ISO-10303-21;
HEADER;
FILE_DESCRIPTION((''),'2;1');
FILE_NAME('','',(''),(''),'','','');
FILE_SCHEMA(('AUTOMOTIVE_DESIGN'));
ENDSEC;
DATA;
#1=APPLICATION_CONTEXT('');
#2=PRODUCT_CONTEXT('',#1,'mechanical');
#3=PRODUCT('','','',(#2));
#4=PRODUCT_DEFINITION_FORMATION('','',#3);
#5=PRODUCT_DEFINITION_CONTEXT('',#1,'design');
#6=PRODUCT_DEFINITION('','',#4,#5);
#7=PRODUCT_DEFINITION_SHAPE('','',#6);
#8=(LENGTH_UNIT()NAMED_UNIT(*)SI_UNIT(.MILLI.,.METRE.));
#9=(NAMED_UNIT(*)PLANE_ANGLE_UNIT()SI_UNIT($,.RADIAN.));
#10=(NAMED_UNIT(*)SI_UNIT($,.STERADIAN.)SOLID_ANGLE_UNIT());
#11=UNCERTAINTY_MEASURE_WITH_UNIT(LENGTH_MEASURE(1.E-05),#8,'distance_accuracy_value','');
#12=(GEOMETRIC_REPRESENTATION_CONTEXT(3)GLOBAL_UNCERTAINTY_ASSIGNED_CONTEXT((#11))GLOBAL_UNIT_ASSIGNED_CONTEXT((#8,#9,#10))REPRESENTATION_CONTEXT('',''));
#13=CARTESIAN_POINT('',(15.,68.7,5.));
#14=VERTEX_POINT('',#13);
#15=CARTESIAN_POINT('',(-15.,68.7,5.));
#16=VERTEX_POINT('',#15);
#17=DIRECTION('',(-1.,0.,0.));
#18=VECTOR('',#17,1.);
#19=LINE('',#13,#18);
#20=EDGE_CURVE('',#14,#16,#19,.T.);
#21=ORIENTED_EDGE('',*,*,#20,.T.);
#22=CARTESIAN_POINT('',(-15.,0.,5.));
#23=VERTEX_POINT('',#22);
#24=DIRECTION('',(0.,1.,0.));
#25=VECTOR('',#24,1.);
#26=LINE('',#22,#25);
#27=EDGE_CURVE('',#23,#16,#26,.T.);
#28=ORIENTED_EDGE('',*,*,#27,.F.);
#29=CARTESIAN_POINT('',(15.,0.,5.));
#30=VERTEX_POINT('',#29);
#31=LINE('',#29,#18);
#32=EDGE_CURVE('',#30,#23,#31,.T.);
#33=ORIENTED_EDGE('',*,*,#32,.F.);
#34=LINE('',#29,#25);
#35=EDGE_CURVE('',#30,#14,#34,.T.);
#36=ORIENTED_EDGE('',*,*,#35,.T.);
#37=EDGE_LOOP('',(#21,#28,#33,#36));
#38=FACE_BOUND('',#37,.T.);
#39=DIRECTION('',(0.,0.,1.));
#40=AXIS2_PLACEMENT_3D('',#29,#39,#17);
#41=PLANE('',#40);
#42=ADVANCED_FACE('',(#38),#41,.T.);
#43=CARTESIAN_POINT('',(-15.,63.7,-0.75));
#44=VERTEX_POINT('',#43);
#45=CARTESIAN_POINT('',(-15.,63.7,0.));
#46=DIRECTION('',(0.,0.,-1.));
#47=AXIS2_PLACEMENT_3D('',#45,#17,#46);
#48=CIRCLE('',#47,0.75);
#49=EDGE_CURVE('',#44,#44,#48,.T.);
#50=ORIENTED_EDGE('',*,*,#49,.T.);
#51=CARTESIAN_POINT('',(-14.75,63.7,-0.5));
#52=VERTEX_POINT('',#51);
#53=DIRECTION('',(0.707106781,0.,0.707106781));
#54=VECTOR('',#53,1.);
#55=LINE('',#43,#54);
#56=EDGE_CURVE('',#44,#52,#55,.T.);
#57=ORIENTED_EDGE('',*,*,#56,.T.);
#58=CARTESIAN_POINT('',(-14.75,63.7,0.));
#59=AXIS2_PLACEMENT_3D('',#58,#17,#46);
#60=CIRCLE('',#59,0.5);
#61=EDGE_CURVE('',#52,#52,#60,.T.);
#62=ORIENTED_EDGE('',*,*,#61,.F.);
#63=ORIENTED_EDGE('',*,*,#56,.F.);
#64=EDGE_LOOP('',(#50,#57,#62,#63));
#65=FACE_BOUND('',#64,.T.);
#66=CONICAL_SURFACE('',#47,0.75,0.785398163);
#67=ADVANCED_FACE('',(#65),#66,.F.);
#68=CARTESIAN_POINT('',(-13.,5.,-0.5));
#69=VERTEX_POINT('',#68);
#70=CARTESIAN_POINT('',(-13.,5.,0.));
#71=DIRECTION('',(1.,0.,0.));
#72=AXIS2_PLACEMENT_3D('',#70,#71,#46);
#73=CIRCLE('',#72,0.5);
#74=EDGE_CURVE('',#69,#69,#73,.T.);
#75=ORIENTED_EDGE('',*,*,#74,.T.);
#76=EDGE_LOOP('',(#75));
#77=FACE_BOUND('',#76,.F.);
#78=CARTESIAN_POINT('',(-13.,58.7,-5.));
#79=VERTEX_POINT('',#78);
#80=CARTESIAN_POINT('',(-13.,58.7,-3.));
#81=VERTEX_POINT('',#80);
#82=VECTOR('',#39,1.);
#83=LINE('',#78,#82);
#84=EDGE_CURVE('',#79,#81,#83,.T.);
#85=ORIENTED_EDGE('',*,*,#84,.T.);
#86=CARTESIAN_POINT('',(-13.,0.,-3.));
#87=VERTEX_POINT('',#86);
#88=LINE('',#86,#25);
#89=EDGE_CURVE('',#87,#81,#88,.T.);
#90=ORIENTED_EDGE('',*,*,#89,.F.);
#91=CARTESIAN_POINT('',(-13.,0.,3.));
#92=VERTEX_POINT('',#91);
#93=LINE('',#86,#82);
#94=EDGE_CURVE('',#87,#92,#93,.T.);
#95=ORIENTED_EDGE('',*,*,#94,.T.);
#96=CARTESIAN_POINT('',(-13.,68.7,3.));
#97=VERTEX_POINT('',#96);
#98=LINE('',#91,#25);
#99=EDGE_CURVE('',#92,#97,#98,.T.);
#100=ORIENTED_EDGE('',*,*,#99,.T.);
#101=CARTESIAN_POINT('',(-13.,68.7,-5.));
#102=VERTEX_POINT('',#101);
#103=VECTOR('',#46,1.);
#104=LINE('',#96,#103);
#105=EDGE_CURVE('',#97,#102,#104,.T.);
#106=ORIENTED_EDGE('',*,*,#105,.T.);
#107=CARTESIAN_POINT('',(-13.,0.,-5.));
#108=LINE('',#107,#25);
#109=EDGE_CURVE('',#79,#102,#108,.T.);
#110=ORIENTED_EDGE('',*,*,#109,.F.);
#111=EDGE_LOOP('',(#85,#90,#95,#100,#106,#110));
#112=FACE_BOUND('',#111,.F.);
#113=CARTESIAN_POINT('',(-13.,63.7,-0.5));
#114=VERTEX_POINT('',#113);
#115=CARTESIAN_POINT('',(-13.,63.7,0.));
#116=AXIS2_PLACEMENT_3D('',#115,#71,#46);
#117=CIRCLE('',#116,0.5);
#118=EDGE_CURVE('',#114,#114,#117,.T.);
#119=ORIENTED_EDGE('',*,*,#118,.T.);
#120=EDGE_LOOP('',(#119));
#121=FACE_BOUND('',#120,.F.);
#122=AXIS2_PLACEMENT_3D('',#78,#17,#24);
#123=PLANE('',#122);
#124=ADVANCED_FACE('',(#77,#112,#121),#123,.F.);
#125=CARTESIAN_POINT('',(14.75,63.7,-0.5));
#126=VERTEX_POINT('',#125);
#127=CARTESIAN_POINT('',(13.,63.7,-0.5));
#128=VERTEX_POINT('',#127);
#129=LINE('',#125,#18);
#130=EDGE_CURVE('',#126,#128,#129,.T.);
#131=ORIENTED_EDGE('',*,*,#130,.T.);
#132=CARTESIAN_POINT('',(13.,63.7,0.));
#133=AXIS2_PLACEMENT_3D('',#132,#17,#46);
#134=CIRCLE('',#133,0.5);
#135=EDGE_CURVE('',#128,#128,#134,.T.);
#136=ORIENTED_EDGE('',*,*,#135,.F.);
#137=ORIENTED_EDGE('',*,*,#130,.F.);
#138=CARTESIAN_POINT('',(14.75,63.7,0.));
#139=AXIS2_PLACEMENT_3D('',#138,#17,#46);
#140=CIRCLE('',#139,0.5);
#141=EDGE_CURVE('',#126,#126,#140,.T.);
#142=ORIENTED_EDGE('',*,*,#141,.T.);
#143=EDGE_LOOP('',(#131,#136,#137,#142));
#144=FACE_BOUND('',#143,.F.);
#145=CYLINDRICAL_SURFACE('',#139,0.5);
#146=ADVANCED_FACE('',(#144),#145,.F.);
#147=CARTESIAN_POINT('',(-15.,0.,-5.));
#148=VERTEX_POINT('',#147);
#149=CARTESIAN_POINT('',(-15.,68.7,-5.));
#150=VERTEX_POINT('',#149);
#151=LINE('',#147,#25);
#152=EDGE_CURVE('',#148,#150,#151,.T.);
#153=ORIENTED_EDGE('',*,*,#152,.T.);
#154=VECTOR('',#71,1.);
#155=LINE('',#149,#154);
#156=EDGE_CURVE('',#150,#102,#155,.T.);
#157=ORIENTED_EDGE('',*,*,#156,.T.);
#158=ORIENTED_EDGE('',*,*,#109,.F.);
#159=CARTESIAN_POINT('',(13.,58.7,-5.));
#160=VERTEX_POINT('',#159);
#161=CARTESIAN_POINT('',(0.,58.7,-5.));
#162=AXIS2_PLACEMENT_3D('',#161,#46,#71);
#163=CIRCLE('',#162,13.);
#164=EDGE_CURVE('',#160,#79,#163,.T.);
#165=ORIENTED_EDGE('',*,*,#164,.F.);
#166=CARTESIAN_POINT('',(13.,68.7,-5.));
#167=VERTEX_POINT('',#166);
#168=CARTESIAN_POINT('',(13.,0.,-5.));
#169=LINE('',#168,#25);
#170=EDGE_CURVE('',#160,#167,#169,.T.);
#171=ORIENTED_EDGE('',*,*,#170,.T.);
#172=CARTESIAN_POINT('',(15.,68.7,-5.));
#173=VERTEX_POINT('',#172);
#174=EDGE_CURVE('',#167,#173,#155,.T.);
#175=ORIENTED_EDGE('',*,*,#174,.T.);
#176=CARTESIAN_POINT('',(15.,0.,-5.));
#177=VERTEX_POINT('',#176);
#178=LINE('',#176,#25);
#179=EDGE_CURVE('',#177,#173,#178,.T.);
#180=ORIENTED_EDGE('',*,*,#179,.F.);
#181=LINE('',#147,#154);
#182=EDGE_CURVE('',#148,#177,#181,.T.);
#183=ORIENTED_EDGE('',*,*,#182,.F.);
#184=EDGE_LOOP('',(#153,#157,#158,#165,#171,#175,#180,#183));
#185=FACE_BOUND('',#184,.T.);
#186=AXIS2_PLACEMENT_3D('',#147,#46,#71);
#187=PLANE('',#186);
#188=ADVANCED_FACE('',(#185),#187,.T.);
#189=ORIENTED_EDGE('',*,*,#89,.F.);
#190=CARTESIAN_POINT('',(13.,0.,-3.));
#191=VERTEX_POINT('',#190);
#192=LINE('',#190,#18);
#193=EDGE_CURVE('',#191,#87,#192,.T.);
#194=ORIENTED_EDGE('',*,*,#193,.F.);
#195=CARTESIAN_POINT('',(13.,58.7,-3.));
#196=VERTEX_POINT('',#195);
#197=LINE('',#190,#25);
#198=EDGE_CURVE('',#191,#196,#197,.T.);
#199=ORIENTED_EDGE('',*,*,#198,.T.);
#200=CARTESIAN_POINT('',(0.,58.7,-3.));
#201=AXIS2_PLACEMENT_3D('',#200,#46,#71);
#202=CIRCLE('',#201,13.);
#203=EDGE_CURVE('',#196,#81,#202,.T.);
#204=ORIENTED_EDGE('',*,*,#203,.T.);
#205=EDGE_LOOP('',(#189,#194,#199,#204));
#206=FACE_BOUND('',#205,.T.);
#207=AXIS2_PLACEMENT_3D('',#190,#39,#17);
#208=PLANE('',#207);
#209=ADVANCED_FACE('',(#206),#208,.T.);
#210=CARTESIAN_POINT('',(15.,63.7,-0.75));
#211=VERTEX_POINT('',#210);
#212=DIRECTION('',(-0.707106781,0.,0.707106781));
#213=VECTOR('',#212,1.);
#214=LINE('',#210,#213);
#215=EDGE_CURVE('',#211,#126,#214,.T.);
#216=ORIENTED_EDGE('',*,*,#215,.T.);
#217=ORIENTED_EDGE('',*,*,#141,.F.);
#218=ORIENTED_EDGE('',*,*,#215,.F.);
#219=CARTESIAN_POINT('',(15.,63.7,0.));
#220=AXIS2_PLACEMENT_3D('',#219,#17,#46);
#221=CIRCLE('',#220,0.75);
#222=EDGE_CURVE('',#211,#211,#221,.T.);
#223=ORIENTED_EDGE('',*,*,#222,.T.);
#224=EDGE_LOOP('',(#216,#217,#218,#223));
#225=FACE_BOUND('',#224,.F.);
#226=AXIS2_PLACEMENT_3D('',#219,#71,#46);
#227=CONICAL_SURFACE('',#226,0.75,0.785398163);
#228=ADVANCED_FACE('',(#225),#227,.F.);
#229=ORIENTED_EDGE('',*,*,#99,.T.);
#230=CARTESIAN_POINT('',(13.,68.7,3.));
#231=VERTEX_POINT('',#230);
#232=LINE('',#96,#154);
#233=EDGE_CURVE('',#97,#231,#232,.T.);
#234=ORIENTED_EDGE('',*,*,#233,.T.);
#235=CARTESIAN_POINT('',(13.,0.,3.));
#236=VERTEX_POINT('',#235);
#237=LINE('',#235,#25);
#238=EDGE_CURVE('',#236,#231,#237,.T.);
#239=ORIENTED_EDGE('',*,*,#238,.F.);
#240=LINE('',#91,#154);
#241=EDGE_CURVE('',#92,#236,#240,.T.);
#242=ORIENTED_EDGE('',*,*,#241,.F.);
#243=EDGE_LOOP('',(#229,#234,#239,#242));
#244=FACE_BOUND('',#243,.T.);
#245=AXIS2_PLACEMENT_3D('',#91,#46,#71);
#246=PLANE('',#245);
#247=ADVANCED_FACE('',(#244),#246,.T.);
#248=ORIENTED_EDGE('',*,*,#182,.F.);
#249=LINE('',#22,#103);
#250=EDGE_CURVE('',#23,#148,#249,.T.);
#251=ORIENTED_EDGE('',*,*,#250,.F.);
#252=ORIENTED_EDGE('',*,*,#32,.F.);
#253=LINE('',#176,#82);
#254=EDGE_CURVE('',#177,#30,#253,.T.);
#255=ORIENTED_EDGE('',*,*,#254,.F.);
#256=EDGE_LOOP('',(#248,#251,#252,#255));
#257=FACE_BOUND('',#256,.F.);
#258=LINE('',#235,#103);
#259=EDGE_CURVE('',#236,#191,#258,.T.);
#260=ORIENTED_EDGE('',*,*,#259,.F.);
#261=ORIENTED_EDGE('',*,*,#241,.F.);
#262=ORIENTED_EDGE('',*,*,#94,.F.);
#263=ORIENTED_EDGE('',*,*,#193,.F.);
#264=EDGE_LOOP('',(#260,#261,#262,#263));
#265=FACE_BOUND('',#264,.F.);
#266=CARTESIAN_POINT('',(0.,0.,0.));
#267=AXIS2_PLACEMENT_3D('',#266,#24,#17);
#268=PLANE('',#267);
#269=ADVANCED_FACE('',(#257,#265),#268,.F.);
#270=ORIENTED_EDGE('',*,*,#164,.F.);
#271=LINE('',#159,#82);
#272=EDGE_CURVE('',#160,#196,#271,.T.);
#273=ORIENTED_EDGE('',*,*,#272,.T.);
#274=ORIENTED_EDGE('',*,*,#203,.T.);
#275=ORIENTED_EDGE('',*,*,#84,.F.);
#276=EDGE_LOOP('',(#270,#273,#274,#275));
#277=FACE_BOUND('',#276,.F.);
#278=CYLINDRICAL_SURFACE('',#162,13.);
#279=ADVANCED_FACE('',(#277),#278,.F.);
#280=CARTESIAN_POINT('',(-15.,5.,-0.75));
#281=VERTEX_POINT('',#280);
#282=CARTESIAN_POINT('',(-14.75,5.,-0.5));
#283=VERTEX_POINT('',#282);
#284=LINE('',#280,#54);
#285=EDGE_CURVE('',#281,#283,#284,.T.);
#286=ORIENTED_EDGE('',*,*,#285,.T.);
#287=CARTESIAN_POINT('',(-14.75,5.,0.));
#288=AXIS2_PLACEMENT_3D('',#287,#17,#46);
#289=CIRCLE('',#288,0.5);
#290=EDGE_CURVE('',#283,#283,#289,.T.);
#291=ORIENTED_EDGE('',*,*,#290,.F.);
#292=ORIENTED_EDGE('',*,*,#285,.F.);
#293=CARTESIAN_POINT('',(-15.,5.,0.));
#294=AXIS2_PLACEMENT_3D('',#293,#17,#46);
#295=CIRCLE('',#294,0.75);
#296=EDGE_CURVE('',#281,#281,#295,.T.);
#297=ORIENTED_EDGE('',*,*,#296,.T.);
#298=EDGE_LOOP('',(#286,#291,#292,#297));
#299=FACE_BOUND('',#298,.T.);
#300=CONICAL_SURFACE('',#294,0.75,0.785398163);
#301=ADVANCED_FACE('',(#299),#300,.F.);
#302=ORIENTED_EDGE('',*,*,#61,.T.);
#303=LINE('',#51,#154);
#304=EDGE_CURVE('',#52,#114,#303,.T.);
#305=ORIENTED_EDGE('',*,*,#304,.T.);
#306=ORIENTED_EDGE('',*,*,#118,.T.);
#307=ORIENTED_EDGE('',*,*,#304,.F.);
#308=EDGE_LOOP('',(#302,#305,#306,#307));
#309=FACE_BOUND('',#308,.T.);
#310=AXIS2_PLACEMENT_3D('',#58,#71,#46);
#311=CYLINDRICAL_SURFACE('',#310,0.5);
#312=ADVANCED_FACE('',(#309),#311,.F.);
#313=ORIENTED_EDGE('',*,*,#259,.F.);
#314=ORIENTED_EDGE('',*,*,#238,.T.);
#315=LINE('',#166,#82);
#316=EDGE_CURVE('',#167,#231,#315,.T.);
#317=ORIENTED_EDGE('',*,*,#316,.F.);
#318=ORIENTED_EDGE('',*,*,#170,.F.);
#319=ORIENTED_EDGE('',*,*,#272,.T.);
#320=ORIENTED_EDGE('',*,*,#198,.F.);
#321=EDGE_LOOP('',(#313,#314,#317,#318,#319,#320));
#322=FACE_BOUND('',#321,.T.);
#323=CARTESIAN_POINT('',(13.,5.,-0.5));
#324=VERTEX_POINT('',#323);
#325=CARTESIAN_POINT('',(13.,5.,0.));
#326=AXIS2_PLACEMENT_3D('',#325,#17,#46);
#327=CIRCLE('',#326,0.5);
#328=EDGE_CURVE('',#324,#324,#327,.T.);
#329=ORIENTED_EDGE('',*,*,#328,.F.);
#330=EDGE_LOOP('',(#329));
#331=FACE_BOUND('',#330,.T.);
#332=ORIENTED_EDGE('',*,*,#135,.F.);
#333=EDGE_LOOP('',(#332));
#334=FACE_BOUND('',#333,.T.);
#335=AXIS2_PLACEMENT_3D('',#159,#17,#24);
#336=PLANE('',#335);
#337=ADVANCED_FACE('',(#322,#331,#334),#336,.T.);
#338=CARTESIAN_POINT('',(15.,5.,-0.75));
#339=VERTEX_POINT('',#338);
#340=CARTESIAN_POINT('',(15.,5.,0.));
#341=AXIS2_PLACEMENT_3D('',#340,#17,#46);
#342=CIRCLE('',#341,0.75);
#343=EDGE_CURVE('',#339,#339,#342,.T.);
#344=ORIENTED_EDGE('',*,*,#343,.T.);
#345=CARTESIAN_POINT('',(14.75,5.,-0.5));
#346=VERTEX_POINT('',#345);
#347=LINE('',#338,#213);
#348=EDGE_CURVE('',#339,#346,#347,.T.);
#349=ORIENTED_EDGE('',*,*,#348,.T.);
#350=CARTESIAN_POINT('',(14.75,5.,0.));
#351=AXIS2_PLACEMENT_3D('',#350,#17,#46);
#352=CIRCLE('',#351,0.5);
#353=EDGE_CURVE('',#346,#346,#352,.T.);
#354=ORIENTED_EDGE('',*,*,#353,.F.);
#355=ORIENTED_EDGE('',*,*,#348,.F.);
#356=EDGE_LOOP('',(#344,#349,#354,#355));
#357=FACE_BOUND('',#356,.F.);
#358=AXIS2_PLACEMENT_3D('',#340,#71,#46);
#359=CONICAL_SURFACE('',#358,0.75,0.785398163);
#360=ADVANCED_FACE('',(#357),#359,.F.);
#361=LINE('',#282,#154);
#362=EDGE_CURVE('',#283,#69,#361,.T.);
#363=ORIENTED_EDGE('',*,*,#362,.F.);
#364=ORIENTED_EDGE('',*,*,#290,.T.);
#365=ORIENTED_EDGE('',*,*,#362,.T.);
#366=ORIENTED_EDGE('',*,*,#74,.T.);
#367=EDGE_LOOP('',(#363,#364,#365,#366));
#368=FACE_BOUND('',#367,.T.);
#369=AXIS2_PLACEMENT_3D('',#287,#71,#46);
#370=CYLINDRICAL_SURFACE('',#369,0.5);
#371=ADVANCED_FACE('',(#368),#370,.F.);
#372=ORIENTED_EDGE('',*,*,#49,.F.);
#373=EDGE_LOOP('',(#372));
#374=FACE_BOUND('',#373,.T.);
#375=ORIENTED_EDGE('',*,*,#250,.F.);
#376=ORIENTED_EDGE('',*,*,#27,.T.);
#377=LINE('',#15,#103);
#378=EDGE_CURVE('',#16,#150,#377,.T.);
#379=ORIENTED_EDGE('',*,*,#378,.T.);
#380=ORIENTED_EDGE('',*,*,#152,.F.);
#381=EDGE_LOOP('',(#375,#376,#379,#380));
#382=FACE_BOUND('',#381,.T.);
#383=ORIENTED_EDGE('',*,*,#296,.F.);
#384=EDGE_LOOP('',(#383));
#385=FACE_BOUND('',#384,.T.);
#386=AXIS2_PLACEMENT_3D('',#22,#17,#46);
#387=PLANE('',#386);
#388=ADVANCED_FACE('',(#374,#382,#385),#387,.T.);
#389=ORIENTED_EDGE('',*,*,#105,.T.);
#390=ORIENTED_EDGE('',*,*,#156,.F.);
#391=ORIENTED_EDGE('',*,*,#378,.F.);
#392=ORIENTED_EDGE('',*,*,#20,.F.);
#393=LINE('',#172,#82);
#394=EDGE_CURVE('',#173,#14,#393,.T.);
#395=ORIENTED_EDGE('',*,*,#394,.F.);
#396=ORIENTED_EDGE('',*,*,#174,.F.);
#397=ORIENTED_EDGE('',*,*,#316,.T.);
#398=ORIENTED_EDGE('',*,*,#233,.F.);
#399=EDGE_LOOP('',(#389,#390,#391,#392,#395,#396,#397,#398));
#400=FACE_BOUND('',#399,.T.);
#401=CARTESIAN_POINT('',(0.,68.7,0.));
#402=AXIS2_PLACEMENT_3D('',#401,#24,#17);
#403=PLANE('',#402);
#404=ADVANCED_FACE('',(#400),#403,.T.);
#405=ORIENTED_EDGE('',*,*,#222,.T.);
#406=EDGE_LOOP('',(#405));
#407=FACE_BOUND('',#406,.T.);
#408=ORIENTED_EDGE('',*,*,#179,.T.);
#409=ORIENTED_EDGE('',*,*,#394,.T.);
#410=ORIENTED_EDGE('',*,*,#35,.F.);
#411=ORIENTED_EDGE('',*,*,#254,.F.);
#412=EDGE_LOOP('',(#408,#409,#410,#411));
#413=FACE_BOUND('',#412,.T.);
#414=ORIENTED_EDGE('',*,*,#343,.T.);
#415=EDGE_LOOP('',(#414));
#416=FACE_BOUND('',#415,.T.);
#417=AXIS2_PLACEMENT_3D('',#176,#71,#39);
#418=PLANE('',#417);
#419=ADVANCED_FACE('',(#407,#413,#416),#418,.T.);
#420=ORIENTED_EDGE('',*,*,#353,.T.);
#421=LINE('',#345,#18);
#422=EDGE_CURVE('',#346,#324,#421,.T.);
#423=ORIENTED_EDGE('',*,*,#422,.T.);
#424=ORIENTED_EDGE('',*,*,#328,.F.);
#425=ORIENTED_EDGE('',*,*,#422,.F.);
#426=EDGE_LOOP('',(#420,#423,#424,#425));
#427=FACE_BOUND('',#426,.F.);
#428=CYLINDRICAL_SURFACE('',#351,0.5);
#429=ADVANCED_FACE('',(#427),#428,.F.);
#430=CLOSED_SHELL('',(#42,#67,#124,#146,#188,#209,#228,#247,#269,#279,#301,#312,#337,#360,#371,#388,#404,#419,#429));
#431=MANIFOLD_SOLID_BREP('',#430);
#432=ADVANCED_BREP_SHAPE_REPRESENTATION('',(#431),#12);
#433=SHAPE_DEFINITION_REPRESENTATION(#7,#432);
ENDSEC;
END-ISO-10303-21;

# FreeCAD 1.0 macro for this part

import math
import FreeCAD as App
import Part
import Sketcher
from FreeCAD import Vector

doc = App.newDocument("Part")
body = doc.addObject("PartDesign::Body", "Body")

# Sketch on XZ plane
sketch1 = body.newObject("Sketcher::SketchObject", "Sketch")
sketch1.AttachmentSupport = (doc.getObject("XZ_Plane"), [""])
sketch1.MapMode = "FlatFace"
sketch1.addGeometry([
    Part.LineSegment(Vector(15, -5, 0), Vector(-15, -5, 0)),  # 0
    Part.LineSegment(Vector(-15, -5, 0), Vector(-15, 5, 0)),  # 1
    Part.LineSegment(Vector(-15, 5, 0), Vector(15, 5, 0)),  # 2
    Part.LineSegment(Vector(15, 5, 0), Vector(15, -5, 0)),  # 3
    Part.LineSegment(Vector(-13, -3, 0), Vector(13, -3, 0)),  # 4
    Part.LineSegment(Vector(13, -3, 0), Vector(13, 3, 0)),  # 5
    Part.LineSegment(Vector(13, 3, 0), Vector(-13, 3, 0)),  # 6
    Part.LineSegment(Vector(-13, 3, 0), Vector(-13, -3, 0)),  # 7
], False)
sketch1.addConstraint([
    Sketcher.Constraint("Coincident", 0, 2, 1, 1),
    Sketcher.Constraint("Coincident", 1, 2, 2, 1),
    Sketcher.Constraint("Coincident", 2, 2, 3, 1),
    Sketcher.Constraint("Coincident", 3, 2, 0, 1),
    Sketcher.Constraint("Coincident", 4, 2, 5, 1),
    Sketcher.Constraint("Coincident", 5, 2, 6, 1),
    Sketcher.Constraint("Coincident", 6, 2, 7, 1),
    Sketcher.Constraint("Coincident", 7, 2, 4, 1),
    Sketcher.Constraint("Horizontal", 0),
    Sketcher.Constraint("Vertical", 1),
    Sketcher.Constraint("Horizontal", 2),
    Sketcher.Constraint("Vertical", 3),
    Sketcher.Constraint("Horizontal", 4),
    Sketcher.Constraint("Vertical", 5),
    Sketcher.Constraint("Horizontal", 6),
    Sketcher.Constraint("Vertical", 7),
    Sketcher.Constraint("Symmetric", 0, 2, 2, 2, -1, 1),
    Sketcher.Constraint("Symmetric", 4, 2, 6, 2, -1, 1),
    Sketcher.Constraint("DistanceX", 0, 2, 0, 1, 30.0),
    Sketcher.Constraint("DistanceY", 1, 1, 1, 2, 10.0),
    Sketcher.Constraint("DistanceX", 4, 2, 3, 2, 2.0),
    Sketcher.Constraint("DistanceY", 3, 2, 4, 2, 2.0),
])
pad1 = body.newObject("PartDesign::Pad", "Pad")
pad1.Profile = sketch1
pad1.Length = 68.7
pad1.Reversed = True

# Sketch on XY plane
sketch2 = body.newObject("Sketcher::SketchObject", "Sketch001")
sketch2.AttachmentSupport = (doc.getObject("XY_Plane"), [""])
sketch2.MapMode = "FlatFace"
sketch2.AttachmentOffset = App.Placement(Vector(0, 0, -5), App.Rotation())
sketch2.addGeometry([
    Part.LineSegment(Vector(-13, 69, 0), Vector(13, 69, 0)),
    Part.LineSegment(Vector(13, 69, 0), Vector(13, 59, 0)),
    Part.ArcOfCircle(Part.Circle(Vector(0, 59, 0), Vector(0, 0, 1), 13), math.radians(180), math.radians(360)),
    Part.LineSegment(Vector(-13, 59, 0), Vector(-13, 69, 0)),
], False)
sketch2.addConstraint([
    Sketcher.Constraint("Coincident", 0, 2, 1, 1),
    Sketcher.Constraint("Tangent", 1, 2, 2, 2),
    Sketcher.Constraint("Tangent", 2, 1, 3, 1),
    Sketcher.Constraint("Coincident", 3, 2, 0, 1),
    Sketcher.Constraint("Horizontal", 0),
    Sketcher.Constraint("Vertical", 1),
    Sketcher.Constraint("Vertical", 3),
    Sketcher.Constraint("PointOnObject", 2, 3, -2),
    Sketcher.Constraint("DistanceY", 1, 2, 1, 1, 10.0),
    Sketcher.Constraint("Radius", 2, 13.0),
    Sketcher.Constraint("DistanceY", -1, 1, 2, 3, 58.7),
])
pocket1 = body.newObject("PartDesign::Pocket", "Pocket")
pocket1.Profile = sketch2
pocket1.Length = 2
pocket1.Reversed = True

# Sketch on YZ plane
sketch3 = body.newObject("Sketcher::SketchObject", "Sketch002")
sketch3.AttachmentSupport = (doc.getObject("YZ_Plane"), [""])
sketch3.MapMode = "FlatFace"
sketch3.AttachmentOffset = App.Placement(Vector(0, 0, 15), App.Rotation())
sketch3.addGeometry([
    Part.Circle(Vector(63.7, 0, 0), Vector(0, 0, 1), 0.5),
    Part.Circle(Vector(5, 0, 0), Vector(0, 0, 1), 0.5),
], False)
sketch3.addConstraint([
    Sketcher.Constraint("Equal", 0, 1),
    Sketcher.Constraint("PointOnObject", 0, 3, -1),
    Sketcher.Constraint("PointOnObject", 1, 3, -1),
    Sketcher.Constraint("Diameter", 0, 1.0),
    Sketcher.Constraint("DistanceX", -1, 1, 1, 3, 5.0),
    Sketcher.Constraint("DistanceX", -1, 1, 0, 3, 63.7),
])
doc.recompute()
hole = body.newObject("PartDesign::Hole", "Hole")
hole.Profile = sketch3
hole.ThreadType = "None"
hole.Diameter = 1
hole.DepthType = "Dimension"
hole.Depth = 15
hole.DrillPoint = "Flat"
hole.HoleCutType = "Countersink"
hole.HoleCutDiameter = 1.5
hole.HoleCutCountersinkAngle = 90
doc.recompute()

mirrored = body.newObject("PartDesign::Mirrored", "Mirrored")
mirrored.Originals = [hole]
mirrored.MirrorPlane = (doc.getObject("YZ_Plane"), [""])
body.Tip = mirrored

doc.recompute()
